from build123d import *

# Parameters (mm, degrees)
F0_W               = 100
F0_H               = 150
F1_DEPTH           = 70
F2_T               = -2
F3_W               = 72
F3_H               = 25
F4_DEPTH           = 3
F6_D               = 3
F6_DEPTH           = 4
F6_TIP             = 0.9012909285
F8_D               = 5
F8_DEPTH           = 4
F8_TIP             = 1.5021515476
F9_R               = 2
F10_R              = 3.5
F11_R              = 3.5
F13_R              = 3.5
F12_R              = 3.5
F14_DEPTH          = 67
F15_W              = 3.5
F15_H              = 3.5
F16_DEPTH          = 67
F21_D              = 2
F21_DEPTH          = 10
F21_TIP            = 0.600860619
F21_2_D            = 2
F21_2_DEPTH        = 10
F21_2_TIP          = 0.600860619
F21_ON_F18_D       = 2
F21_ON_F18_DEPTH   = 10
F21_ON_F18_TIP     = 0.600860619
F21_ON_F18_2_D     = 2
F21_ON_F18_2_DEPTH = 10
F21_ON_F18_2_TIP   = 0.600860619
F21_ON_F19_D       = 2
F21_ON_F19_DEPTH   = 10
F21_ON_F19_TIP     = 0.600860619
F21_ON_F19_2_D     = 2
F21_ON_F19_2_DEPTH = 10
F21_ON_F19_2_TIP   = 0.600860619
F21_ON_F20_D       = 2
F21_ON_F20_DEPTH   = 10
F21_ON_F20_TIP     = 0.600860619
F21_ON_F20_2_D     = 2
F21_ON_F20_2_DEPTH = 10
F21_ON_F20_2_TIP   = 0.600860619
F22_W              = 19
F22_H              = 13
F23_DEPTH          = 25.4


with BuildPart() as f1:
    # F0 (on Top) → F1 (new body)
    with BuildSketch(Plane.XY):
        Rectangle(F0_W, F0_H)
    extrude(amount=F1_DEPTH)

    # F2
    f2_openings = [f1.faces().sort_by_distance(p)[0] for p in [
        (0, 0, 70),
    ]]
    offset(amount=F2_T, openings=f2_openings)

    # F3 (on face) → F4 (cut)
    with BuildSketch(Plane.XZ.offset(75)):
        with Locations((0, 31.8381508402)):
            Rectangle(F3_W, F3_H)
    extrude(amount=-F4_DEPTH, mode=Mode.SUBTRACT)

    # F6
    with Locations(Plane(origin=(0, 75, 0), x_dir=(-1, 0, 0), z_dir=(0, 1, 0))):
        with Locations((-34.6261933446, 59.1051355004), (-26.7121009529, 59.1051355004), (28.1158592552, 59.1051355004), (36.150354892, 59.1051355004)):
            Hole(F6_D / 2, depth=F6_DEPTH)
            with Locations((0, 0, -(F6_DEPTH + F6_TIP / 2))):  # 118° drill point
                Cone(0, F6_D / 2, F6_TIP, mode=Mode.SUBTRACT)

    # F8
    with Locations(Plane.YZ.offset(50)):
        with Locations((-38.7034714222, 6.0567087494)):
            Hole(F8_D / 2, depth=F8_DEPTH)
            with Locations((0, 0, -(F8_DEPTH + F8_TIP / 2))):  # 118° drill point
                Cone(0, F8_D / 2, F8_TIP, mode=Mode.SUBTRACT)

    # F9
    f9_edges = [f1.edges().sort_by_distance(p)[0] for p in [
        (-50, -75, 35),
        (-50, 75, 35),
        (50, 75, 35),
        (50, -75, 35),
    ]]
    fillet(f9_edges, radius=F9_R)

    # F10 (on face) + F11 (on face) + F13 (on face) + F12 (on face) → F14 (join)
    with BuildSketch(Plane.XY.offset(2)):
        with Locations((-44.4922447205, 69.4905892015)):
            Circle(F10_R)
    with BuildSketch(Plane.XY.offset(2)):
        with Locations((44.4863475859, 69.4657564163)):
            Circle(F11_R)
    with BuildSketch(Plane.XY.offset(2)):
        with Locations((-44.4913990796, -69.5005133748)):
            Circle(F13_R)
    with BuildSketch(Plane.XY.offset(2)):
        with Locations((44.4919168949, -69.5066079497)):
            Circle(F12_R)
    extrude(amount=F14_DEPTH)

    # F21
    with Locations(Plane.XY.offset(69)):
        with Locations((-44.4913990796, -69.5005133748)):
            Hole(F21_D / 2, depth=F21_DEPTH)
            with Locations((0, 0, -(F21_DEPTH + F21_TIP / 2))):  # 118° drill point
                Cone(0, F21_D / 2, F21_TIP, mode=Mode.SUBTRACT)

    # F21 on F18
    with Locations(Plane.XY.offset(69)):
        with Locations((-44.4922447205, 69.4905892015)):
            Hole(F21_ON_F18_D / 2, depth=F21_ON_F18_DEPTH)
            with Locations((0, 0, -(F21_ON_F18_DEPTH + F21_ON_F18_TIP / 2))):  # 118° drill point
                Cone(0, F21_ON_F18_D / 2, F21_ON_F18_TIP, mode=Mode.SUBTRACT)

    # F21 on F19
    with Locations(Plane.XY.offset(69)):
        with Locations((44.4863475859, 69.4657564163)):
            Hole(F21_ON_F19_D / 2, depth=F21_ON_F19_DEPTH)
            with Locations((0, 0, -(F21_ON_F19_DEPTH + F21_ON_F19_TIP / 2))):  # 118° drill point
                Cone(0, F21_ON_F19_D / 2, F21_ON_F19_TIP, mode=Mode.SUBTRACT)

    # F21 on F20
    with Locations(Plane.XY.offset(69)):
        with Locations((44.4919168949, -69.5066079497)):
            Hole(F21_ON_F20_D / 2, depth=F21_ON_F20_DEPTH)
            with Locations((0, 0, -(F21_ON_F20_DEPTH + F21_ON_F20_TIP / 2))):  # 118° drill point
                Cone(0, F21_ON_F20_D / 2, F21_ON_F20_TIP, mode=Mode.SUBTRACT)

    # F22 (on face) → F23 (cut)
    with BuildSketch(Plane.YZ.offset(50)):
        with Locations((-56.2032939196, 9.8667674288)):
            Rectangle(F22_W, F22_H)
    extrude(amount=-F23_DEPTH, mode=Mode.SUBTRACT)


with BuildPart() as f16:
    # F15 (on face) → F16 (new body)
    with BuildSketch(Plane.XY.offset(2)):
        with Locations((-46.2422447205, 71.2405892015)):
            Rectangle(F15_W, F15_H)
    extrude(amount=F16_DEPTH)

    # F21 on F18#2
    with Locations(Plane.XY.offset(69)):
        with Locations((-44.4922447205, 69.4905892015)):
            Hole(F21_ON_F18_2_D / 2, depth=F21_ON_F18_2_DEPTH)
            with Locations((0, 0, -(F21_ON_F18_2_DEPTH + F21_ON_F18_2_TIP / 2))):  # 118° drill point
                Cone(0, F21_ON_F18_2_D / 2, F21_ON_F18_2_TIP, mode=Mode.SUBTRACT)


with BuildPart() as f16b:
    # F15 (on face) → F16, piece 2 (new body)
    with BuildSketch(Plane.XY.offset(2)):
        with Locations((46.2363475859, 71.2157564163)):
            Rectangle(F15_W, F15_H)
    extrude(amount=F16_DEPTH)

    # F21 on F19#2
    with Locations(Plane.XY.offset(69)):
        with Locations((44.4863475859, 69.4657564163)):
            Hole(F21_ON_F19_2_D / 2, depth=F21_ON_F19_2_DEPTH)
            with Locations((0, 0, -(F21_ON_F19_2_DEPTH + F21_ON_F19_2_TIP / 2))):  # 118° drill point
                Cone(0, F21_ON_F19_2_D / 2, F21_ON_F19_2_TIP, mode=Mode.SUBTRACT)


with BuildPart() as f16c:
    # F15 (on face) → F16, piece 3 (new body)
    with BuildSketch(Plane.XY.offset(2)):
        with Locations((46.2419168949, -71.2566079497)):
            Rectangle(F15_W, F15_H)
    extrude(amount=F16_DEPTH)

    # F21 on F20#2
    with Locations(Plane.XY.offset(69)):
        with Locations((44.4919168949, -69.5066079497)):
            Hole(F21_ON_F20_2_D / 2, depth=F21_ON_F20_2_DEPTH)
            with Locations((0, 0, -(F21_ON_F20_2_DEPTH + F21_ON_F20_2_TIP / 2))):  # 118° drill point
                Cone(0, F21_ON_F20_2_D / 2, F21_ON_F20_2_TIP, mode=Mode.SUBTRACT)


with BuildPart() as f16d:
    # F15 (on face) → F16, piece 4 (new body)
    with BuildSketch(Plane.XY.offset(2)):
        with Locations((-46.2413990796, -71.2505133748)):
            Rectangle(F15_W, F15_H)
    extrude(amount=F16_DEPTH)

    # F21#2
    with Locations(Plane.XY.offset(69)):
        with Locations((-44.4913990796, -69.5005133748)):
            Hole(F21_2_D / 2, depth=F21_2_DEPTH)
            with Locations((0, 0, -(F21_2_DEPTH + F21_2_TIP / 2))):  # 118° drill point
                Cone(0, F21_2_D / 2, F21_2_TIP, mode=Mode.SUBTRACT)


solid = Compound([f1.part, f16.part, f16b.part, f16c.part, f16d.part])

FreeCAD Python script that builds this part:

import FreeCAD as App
import Part
import Sketcher

V = App.Vector


def edges_at(feature, points):
    """Names of the edges that pass closest to the given points."""
    edges = feature.Shape.Edges
    near = lambda p: min(range(len(edges)), key=lambda i: edges[i].distToShape(Part.Vertex(*p))[0])
    return sorted({f"Edge{near(p) + 1}" for p in points})


def faces_at(feature, points):
    """Names of the faces that lie closest to the given points."""
    faces = feature.Shape.Faces
    near = lambda p: min(range(len(faces)), key=lambda i: faces[i].distToShape(Part.Vertex(*p))[0])
    return sorted({f"Face{near(p) + 1}" for p in points})


def add_polygon(sketch, points):
    """Adds a closed chain of lines whose ends are joined by coincident constraints."""
    first, n = sketch.GeometryCount, len(points)
    for a, b in zip(points, points[1:] + points[:1]):
        sketch.addGeometry(Part.LineSegment(App.Vector(*a, 0), App.Vector(*b, 0)), False)
    for i in range(n):
        sketch.addConstraint(Sketcher.Constraint("Coincident", first + i, 2, first + (i + 1) % n, 1))

doc = App.newDocument("Part")
body = doc.addObject("PartDesign::Body", "Body")

# Sketch on XY plane
sketch1 = body.newObject("Sketcher::SketchObject", "Sketch")
sketch1.AttachmentSupport = (doc.getObject("XY_Plane"), [""])
sketch1.MapMode = "FlatFace"
add_polygon(sketch1, [(-50, 75), (-50, -75), (50, -75), (50, 75)])  # lines 0-3
sketch1.addConstraint(Sketcher.Constraint("Vertical", 0))
sketch1.addConstraint(Sketcher.Constraint("Horizontal", 1))
sketch1.addConstraint(Sketcher.Constraint("Vertical", 2))
sketch1.addConstraint(Sketcher.Constraint("Horizontal", 3))
sketch1.addConstraint(Sketcher.Constraint("Symmetric", 0, 2, 2, 2, -1, 1))
sketch1.addConstraint(Sketcher.Constraint("DistanceX", 1, 1, 1, 2, 100.0))
sketch1.addConstraint(Sketcher.Constraint("DistanceY", 0, 2, 0, 1, 150.0))
pad1 = body.newObject("PartDesign::Pad", "Pad")
pad1.Profile = sketch1
pad1.Length = 70
doc.recompute()

thickness = body.newObject("PartDesign::Thickness", "Thickness")
thickness.Base = (pad1, faces_at(pad1, [(0, 0, 70)]))
thickness.Value = 2
thickness.Reversed = True
thickness.Join = "Arc"

# Sketch on XZ plane
sketch2 = body.newObject("Sketcher::SketchObject", "Sketch001")
sketch2.AttachmentSupport = (doc.getObject("XZ_Plane"), [""])
sketch2.MapMode = "FlatFace"
sketch2.AttachmentOffset = App.Placement(V(0, 0, 75), App.Rotation())
add_polygon(sketch2, [(-36, 44.338151), (-36, 19.338151), (36, 19.338151), (36, 44.338151)])  # lines 0-3
sketch2.addConstraint(Sketcher.Constraint("Vertical", 0))
sketch2.addConstraint(Sketcher.Constraint("Horizontal", 1))
sketch2.addConstraint(Sketcher.Constraint("Vertical", 2))
sketch2.addConstraint(Sketcher.Constraint("Horizontal", 3))
sketch2.addConstraint(Sketcher.Constraint("DistanceX", 1, 1, 1, 2, 72.0))
sketch2.addConstraint(Sketcher.Constraint("DistanceY", 0, 2, 0, 1, 25.0))
sketch2.addConstraint(Sketcher.Constraint("DistanceX", 0, 2, -1, 1, 36.0))
sketch2.addConstraint(Sketcher.Constraint("DistanceY", -1, 1, 0, 2, 19.338151))
pocket1 = body.newObject("PartDesign::Pocket", "Pocket")
pocket1.Profile = sketch2
pocket1.Length = 3

# Sketch on XZ plane
sketch3 = body.newObject("Sketcher::SketchObject", "Sketch002")
sketch3.AttachmentSupport = (doc.getObject("XZ_Plane"), [""])
sketch3.MapMode = "FlatFace"
sketch3.AttachmentOffset = App.Placement(V(0, 0, -75), App.Rotation())
sketch3.addGeometry(Part.Circle(V(34.626193, 59.105136, 0), V(0, 0, 1), 1.5), False)
sketch3.addGeometry(Part.Circle(V(26.712101, 59.105136, 0), V(0, 0, 1), 1.5), False)
sketch3.addGeometry(Part.Circle(V(-28.115859, 59.105136, 0), V(0, 0, 1), 1.5), False)
sketch3.addGeometry(Part.Circle(V(-36.150355, 59.105136, 0), V(0, 0, 1), 1.5), False)
sketch3.addConstraint(Sketcher.Constraint("Equal", 0, 1))
sketch3.addConstraint(Sketcher.Constraint("Equal", 1, 2))
sketch3.addConstraint(Sketcher.Constraint("Equal", 2, 3))
sketch3.addConstraint(Sketcher.Constraint("Horizontal", 0, 3, 1, 3))
sketch3.addConstraint(Sketcher.Constraint("Horizontal", 1, 3, 2, 3))
sketch3.addConstraint(Sketcher.Constraint("Horizontal", 2, 3, 3, 3))
sketch3.addConstraint(Sketcher.Constraint("Diameter", 0, 3.0))
sketch3.addConstraint(Sketcher.Constraint("DistanceX", -1, 1, 1, 3, 26.712101))
sketch3.addConstraint(Sketcher.Constraint("DistanceX", 2, 3, -1, 1, 28.115859))
sketch3.addConstraint(Sketcher.Constraint("DistanceX", 3, 3, 0, 3, 70.776548))
sketch3.addConstraint(Sketcher.Constraint("DistanceX", -1, 1, 0, 3, 34.626193))
sketch3.addConstraint(Sketcher.Constraint("DistanceY", -1, 1, 0, 3, 59.105136))
doc.recompute()
hole = body.newObject("PartDesign::Hole", "Hole")
hole.Profile = sketch3
hole.ThreadType = "None"
hole.Diameter = 3
hole.DepthType = "Dimension"
hole.Depth = 4
hole.DrillPoint = "Angled"
hole.DrillPointAngle = 118
hole.Reversed = True

# Sketch on YZ plane
sketch4 = body.newObject("Sketcher::SketchObject", "Sketch003")
sketch4.AttachmentSupport = (doc.getObject("YZ_Plane"), [""])
sketch4.MapMode = "FlatFace"
sketch4.AttachmentOffset = App.Placement(V(0, 0, 50), App.Rotation())
sketch4.addGeometry(Part.Circle(V(-38.703471, 6.056709, 0), V(0, 0, 1), 2.5), False)
sketch4.addConstraint(Sketcher.Constraint("Diameter", 0, 5.0))
sketch4.addConstraint(Sketcher.Constraint("DistanceX", 0, 3, -1, 1, 38.703471))
sketch4.addConstraint(Sketcher.Constraint("DistanceY", -1, 1, 0, 3, 6.056709))
doc.recompute()
hole2 = body.newObject("PartDesign::Hole", "Hole001")
hole2.Profile = sketch4
hole2.ThreadType = "None"
hole2.Diameter = 5
hole2.DepthType = "Dimension"
hole2.Depth = 4
hole2.DrillPoint = "Angled"
hole2.DrillPointAngle = 118
doc.recompute()

fillet = body.newObject("PartDesign::Fillet", "Fillet")
fillet.Base = (hole2, edges_at(hole2, [
    (-50, -75, 35),
    (-50, 75, 35),
    (50, 75, 35),
    (50, -75, 35),
]))
fillet.Radius = 2

# Sketch on XY plane
sketch5 = body.newObject("Sketcher::SketchObject", "Sketch004")
sketch5.AttachmentSupport = (doc.getObject("XY_Plane"), [""])
sketch5.MapMode = "FlatFace"
sketch5.AttachmentOffset = App.Placement(V(0, 0, 2), App.Rotation())
sketch5.addGeometry(Part.Circle(V(-44.492245, 69.490589, 0), V(0, 0, 1), 3.5), False)
sketch5.addGeometry(Part.Circle(V(44.486348, 69.465756, 0), V(0, 0, 1), 3.5), False)
sketch5.addGeometry(Part.Circle(V(-44.491399, -69.500513, 0), V(0, 0, 1), 3.5), False)
sketch5.addGeometry(Part.Circle(V(44.491917, -69.506608, 0), V(0, 0, 1), 3.5), False)
sketch5.addConstraint(Sketcher.Constraint("Equal", 0, 1))
sketch5.addConstraint(Sketcher.Constraint("Equal", 1, 2))
sketch5.addConstraint(Sketcher.Constraint("Equal", 2, 3))
sketch5.addConstraint(Sketcher.Constraint("Diameter", 0, 7.0))
sketch5.addConstraint(Sketcher.Constraint("DistanceX", 2, 3, -1, 1, 44.491399))
sketch5.addConstraint(Sketcher.Constraint("DistanceY", -1, 1, 0, 3, 69.490589))
sketch5.addConstraint(Sketcher.Constraint("DistanceY", 2, 3, 1, 3, 138.96627))
sketch5.addConstraint(Sketcher.Constraint("DistanceX", 1, 3, 3, 3, 0.005569))
sketch5.addConstraint(Sketcher.Constraint("DistanceX", 0, 3, 3, 3, 88.984162))
sketch5.addConstraint(Sketcher.Constraint("DistanceX", 0, 3, -1, 1, 44.492245))
sketch5.addConstraint(Sketcher.Constraint("DistanceY", -1, 1, 1, 3, 69.465756))
sketch5.addConstraint(Sketcher.Constraint("DistanceY", 3, 3, -1, 1, 69.506608))
pad2 = body.newObject("PartDesign::Pad", "Pad001")
pad2.Profile = sketch5
pad2.Length = 67

# Sketch on XY plane
sketch6 = body.newObject("Sketcher::SketchObject", "Sketch005")
sketch6.AttachmentSupport = (doc.getObject("XY_Plane"), [""])
sketch6.MapMode = "FlatFace"
sketch6.AttachmentOffset = App.Placement(V(0, 0, 69), App.Rotation())
sketch6.addGeometry(Part.Circle(V(-44.491399, -69.500513, 0), V(0, 0, 1), 1), False)
sketch6.addConstraint(Sketcher.Constraint("Diameter", 0, 2.0))
sketch6.addConstraint(Sketcher.Constraint("DistanceX", 0, 3, -1, 1, 44.491399))
sketch6.addConstraint(Sketcher.Constraint("DistanceY", 0, 3, -1, 1, 69.500513))
doc.recompute()
hole3 = body.newObject("PartDesign::Hole", "Hole002")
hole3.Profile = sketch6
hole3.ThreadType = "None"
hole3.Diameter = 2
hole3.DepthType = "Dimension"
hole3.Depth = 10
hole3.DrillPoint = "Angled"
hole3.DrillPointAngle = 118

# Sketch on XY plane
sketch7 = body.newObject("Sketcher::SketchObject", "Sketch006")
sketch7.AttachmentSupport = (doc.getObject("XY_Plane"), [""])
sketch7.MapMode = "FlatFace"
sketch7.AttachmentOffset = App.Placement(V(0, 0, 69), App.Rotation())
sketch7.addGeometry(Part.Circle(V(-44.492245, 69.490589, 0), V(0, 0, 1), 1), False)
sketch7.addConstraint(Sketcher.Constraint("Diameter", 0, 2.0))
sketch7.addConstraint(Sketcher.Constraint("DistanceY", -1, 1, 0, 3, 69.490589))
sketch7.addConstraint(Sketcher.Constraint("DistanceX", 0, 3, -1, 1, 44.492245))
doc.recompute()
hole4 = body.newObject("PartDesign::Hole", "Hole003")
hole4.Profile = sketch7
hole4.ThreadType = "None"
hole4.Diameter = 2
hole4.DepthType = "Dimension"
hole4.Depth = 10
hole4.DrillPoint = "Angled"
hole4.DrillPointAngle = 118

# Sketch on XY plane
sketch8 = body.newObject("Sketcher::SketchObject", "Sketch007")
sketch8.AttachmentSupport = (doc.getObject("XY_Plane"), [""])
sketch8.MapMode = "FlatFace"
sketch8.AttachmentOffset = App.Placement(V(0, 0, 69), App.Rotation())
sketch8.addGeometry(Part.Circle(V(44.486348, 69.465756, 0), V(0, 0, 1), 1), False)
sketch8.addConstraint(Sketcher.Constraint("Diameter", 0, 2.0))
sketch8.addConstraint(Sketcher.Constraint("DistanceX", -1, 1, 0, 3, 44.486348))
sketch8.addConstraint(Sketcher.Constraint("DistanceY", -1, 1, 0, 3, 69.465756))
doc.recompute()
hole5 = body.newObject("PartDesign::Hole", "Hole004")
hole5.Profile = sketch8
hole5.ThreadType = "None"
hole5.Diameter = 2
hole5.DepthType = "Dimension"
hole5.Depth = 10
hole5.DrillPoint = "Angled"
hole5.DrillPointAngle = 118

# Sketch on XY plane
sketch9 = body.newObject("Sketcher::SketchObject", "Sketch008")
sketch9.AttachmentSupport = (doc.getObject("XY_Plane"), [""])
sketch9.MapMode = "FlatFace"
sketch9.AttachmentOffset = App.Placement(V(0, 0, 69), App.Rotation())
sketch9.addGeometry(Part.Circle(V(44.491917, -69.506608, 0), V(0, 0, 1), 1), False)
sketch9.addConstraint(Sketcher.Constraint("Diameter", 0, 2.0))
sketch9.addConstraint(Sketcher.Constraint("DistanceX", -1, 1, 0, 3, 44.491917))
sketch9.addConstraint(Sketcher.Constraint("DistanceY", 0, 3, -1, 1, 69.506608))
doc.recompute()
hole6 = body.newObject("PartDesign::Hole", "Hole005")
hole6.Profile = sketch9
hole6.ThreadType = "None"
hole6.Diameter = 2
hole6.DepthType = "Dimension"
hole6.Depth = 10
hole6.DrillPoint = "Angled"
hole6.DrillPointAngle = 118

# Sketch on YZ plane
sketch10 = body.newObject("Sketcher::SketchObject", "Sketch009")
sketch10.AttachmentSupport = (doc.getObject("YZ_Plane"), [""])
sketch10.MapMode = "FlatFace"
sketch10.AttachmentOffset = App.Placement(V(0, 0, 50), App.Rotation())
add_polygon(sketch10, [(-65.703294, 16.366767), (-65.703294, 3.366767), (-46.703294, 3.366767), (-46.703294, 16.366767)])  # lines 0-3
sketch10.addConstraint(Sketcher.Constraint("Vertical", 0))
sketch10.addConstraint(Sketcher.Constraint("Horizontal", 1))
sketch10.addConstraint(Sketcher.Constraint("Vertical", 2))
sketch10.addConstraint(Sketcher.Constraint("Horizontal", 3))
sketch10.addConstraint(Sketcher.Constraint("DistanceX", 1, 1, 1, 2, 19.0))
sketch10.addConstraint(Sketcher.Constraint("DistanceY", 0, 2, 0, 1, 13.0))
sketch10.addConstraint(Sketcher.Constraint("DistanceX", 0, 2, -1, 1, 65.703294))
sketch10.addConstraint(Sketcher.Constraint("DistanceY", -1, 1, 0, 2, 3.366767))
pocket2 = body.newObject("PartDesign::Pocket", "Pocket001")
pocket2.Profile = sketch10
pocket2.Length = 25.4
body2 = doc.addObject("PartDesign::Body", "Body001")

# Sketch on XY plane
sketch11 = body2.newObject("Sketcher::SketchObject", "Sketch010")
sketch11.AttachmentSupport = (doc.getObject("XY_Plane001"), [""])
sketch11.MapMode = "FlatFace"
sketch11.AttachmentOffset = App.Placement(V(0, 0, 2), App.Rotation())
add_polygon(sketch11, [(-47.992245, 72.990589), (-47.992245, 69.490589), (-44.492245, 69.490589), (-44.492245, 72.990589)])  # lines 0-3
sketch11.addConstraint(Sketcher.Constraint("Vertical", 0))
sketch11.addConstraint(Sketcher.Constraint("Horizontal", 1))
sketch11.addConstraint(Sketcher.Constraint("Vertical", 2))
sketch11.addConstraint(Sketcher.Constraint("Horizontal", 3))
sketch11.addConstraint(Sketcher.Constraint("Equal", 3, 0))
sketch11.addConstraint(Sketcher.Constraint("DistanceX", 1, 1, 1, 2, 3.5))
sketch11.addConstraint(Sketcher.Constraint("DistanceY", -1, 1, 0, 2, 69.490589))
sketch11.addConstraint(Sketcher.Constraint("DistanceX", 0, 2, -1, 1, 47.992245))
pad3 = body2.newObject("PartDesign::Pad", "Pad002")
pad3.Profile = sketch11
pad3.Length = 67

# Sketch on XY plane
sketch12 = body2.newObject("Sketcher::SketchObject", "Sketch011")
sketch12.AttachmentSupport = (doc.getObject("XY_Plane001"), [""])
sketch12.MapMode = "FlatFace"
sketch12.AttachmentOffset = App.Placement(V(0, 0, 69), App.Rotation())
sketch12.addGeometry(Part.Circle(V(-44.492245, 69.490589, 0), V(0, 0, 1), 1), False)
sketch12.addConstraint(Sketcher.Constraint("Diameter", 0, 2.0))
sketch12.addConstraint(Sketcher.Constraint("DistanceY", -1, 1, 0, 3, 69.490589))
sketch12.addConstraint(Sketcher.Constraint("DistanceX", 0, 3, -1, 1, 44.492245))
doc.recompute()
hole7 = body2.newObject("PartDesign::Hole", "Hole006")
hole7.Profile = sketch12
hole7.ThreadType = "None"
hole7.Diameter = 2
hole7.DepthType = "Dimension"
hole7.Depth = 10
hole7.DrillPoint = "Angled"
hole7.DrillPointAngle = 118
body3 = doc.addObject("PartDesign::Body", "Body002")

# Sketch on XY plane
sketch13 = body3.newObject("Sketcher::SketchObject", "Sketch012")
sketch13.AttachmentSupport = (doc.getObject("XY_Plane002"), [""])
sketch13.MapMode = "FlatFace"
sketch13.AttachmentOffset = App.Placement(V(0, 0, 2), App.Rotation())
add_polygon(sketch13, [(44.486348, 72.965756), (44.486348, 69.465756), (47.986348, 69.465756), (47.986348, 72.965756)])  # lines 0-3
sketch13.addConstraint(Sketcher.Constraint("Vertical", 0))
sketch13.addConstraint(Sketcher.Constraint("Horizontal", 1))
sketch13.addConstraint(Sketcher.Constraint("Vertical", 2))
sketch13.addConstraint(Sketcher.Constraint("Horizontal", 3))
sketch13.addConstraint(Sketcher.Constraint("Equal", 3, 0))
sketch13.addConstraint(Sketcher.Constraint("DistanceX", 1, 1, 1, 2, 3.5))
sketch13.addConstraint(Sketcher.Constraint("DistanceX", -1, 1, 0, 2, 44.486348))
sketch13.addConstraint(Sketcher.Constraint("DistanceY", -1, 1, 0, 2, 69.465756))
pad4 = body3.newObject("PartDesign::Pad", "Pad003")
pad4.Profile = sketch13
pad4.Length = 67

# Sketch on XY plane
sketch14 = body3.newObject("Sketcher::SketchObject", "Sketch013")
sketch14.AttachmentSupport = (doc.getObject("XY_Plane002"), [""])
sketch14.MapMode = "FlatFace"
sketch14.AttachmentOffset = App.Placement(V(0, 0, 69), App.Rotation())
sketch14.addGeometry(Part.Circle(V(44.486348, 69.465756, 0), V(0, 0, 1), 1), False)
sketch14.addConstraint(Sketcher.Constraint("Diameter", 0, 2.0))
sketch14.addConstraint(Sketcher.Constraint("DistanceX", -1, 1, 0, 3, 44.486348))
sketch14.addConstraint(Sketcher.Constraint("DistanceY", -1, 1, 0, 3, 69.465756))
doc.recompute()
hole8 = body3.newObject("PartDesign::Hole", "Hole007")
hole8.Profile = sketch14
hole8.ThreadType = "None"
hole8.Diameter = 2
hole8.DepthType = "Dimension"
hole8.Depth = 10
hole8.DrillPoint = "Angled"
hole8.DrillPointAngle = 118
body4 = doc.addObject("PartDesign::Body", "Body003")

# Sketch on XY plane
sketch15 = body4.newObject("Sketcher::SketchObject", "Sketch014")
sketch15.AttachmentSupport = (doc.getObject("XY_Plane003"), [""])
sketch15.MapMode = "FlatFace"
sketch15.AttachmentOffset = App.Placement(V(0, 0, 2), App.Rotation())
add_polygon(sketch15, [(44.491917, -69.506608), (44.491917, -73.006608), (47.991917, -73.006608), (47.991917, -69.506608)])  # lines 0-3
sketch15.addConstraint(Sketcher.Constraint("Vertical", 0))
sketch15.addConstraint(Sketcher.Constraint("Horizontal", 1))
sketch15.addConstraint(Sketcher.Constraint("Vertical", 2))
sketch15.addConstraint(Sketcher.Constraint("Horizontal", 3))
sketch15.addConstraint(Sketcher.Constraint("Equal", 3, 0))
sketch15.addConstraint(Sketcher.Constraint("DistanceX", 1, 1, 1, 2, 3.5))
sketch15.addConstraint(Sketcher.Constraint("DistanceX", -1, 1, 0, 2, 44.491917))
sketch15.addConstraint(Sketcher.Constraint("DistanceY", 0, 2, -1, 1, 73.006608))
pad5 = body4.newObject("PartDesign::Pad", "Pad004")
pad5.Profile = sketch15
pad5.Length = 67

# Sketch on XY plane
sketch16 = body4.newObject("Sketcher::SketchObject", "Sketch015")
sketch16.AttachmentSupport = (doc.getObject("XY_Plane003"), [""])
sketch16.MapMode = "FlatFace"
sketch16.AttachmentOffset = App.Placement(V(0, 0, 69), App.Rotation())
sketch16.addGeometry(Part.Circle(V(44.491917, -69.506608, 0), V(0, 0, 1), 1), False)
sketch16.addConstraint(Sketcher.Constraint("Diameter", 0, 2.0))
sketch16.addConstraint(Sketcher.Constraint("DistanceX", -1, 1, 0, 3, 44.491917))
sketch16.addConstraint(Sketcher.Constraint("DistanceY", 0, 3, -1, 1, 69.506608))
doc.recompute()
hole9 = body4.newObject("PartDesign::Hole", "Hole008")
hole9.Profile = sketch16
hole9.ThreadType = "None"
hole9.Diameter = 2
hole9.DepthType = "Dimension"
hole9.Depth = 10
hole9.DrillPoint = "Angled"
hole9.DrillPointAngle = 118
body5 = doc.addObject("PartDesign::Body", "Body004")

# Sketch on XY plane
sketch17 = body5.newObject("Sketcher::SketchObject", "Sketch016")
sketch17.AttachmentSupport = (doc.getObject("XY_Plane004"), [""])
sketch17.MapMode = "FlatFace"
sketch17.AttachmentOffset = App.Placement(V(0, 0, 2), App.Rotation())
add_polygon(sketch17, [(-47.991399, -69.500513), (-47.991399, -73.000513), (-44.491399, -73.000513), (-44.491399, -69.500513)])  # lines 0-3
sketch17.addConstraint(Sketcher.Constraint("Vertical", 0))
sketch17.addConstraint(Sketcher.Constraint("Horizontal", 1))
sketch17.addConstraint(Sketcher.Constraint("Vertical", 2))
sketch17.addConstraint(Sketcher.Constraint("Horizontal", 3))
sketch17.addConstraint(Sketcher.Constraint("Equal", 3, 0))
sketch17.addConstraint(Sketcher.Constraint("DistanceX", 1, 1, 1, 2, 3.5))
sketch17.addConstraint(Sketcher.Constraint("DistanceX", 0, 2, -1, 1, 47.991399))
sketch17.addConstraint(Sketcher.Constraint("DistanceY", 0, 2, -1, 1, 73.000513))
pad6 = body5.newObject("PartDesign::Pad", "Pad005")
pad6.Profile = sketch17
pad6.Length = 67

# Sketch on XY plane
sketch18 = body5.newObject("Sketcher::SketchObject", "Sketch017")
sketch18.AttachmentSupport = (doc.getObject("XY_Plane004"), [""])
sketch18.MapMode = "FlatFace"
sketch18.AttachmentOffset = App.Placement(V(0, 0, 69), App.Rotation())
sketch18.addGeometry(Part.Circle(V(-44.491399, -69.500513, 0), V(0, 0, 1), 1), False)
sketch18.addConstraint(Sketcher.Constraint("Diameter", 0, 2.0))
sketch18.addConstraint(Sketcher.Constraint("DistanceX", 0, 3, -1, 1, 44.491399))
sketch18.addConstraint(Sketcher.Constraint("DistanceY", 0, 3, -1, 1, 69.500513))
doc.recompute()
hole10 = body5.newObject("PartDesign::Hole", "Hole009")
hole10.Profile = sketch18
hole10.ThreadType = "None"
hole10.Diameter = 2
hole10.DepthType = "Dimension"
hole10.Depth = 10
hole10.DrillPoint = "Angled"
hole10.DrillPointAngle = 118

doc.recompute()
